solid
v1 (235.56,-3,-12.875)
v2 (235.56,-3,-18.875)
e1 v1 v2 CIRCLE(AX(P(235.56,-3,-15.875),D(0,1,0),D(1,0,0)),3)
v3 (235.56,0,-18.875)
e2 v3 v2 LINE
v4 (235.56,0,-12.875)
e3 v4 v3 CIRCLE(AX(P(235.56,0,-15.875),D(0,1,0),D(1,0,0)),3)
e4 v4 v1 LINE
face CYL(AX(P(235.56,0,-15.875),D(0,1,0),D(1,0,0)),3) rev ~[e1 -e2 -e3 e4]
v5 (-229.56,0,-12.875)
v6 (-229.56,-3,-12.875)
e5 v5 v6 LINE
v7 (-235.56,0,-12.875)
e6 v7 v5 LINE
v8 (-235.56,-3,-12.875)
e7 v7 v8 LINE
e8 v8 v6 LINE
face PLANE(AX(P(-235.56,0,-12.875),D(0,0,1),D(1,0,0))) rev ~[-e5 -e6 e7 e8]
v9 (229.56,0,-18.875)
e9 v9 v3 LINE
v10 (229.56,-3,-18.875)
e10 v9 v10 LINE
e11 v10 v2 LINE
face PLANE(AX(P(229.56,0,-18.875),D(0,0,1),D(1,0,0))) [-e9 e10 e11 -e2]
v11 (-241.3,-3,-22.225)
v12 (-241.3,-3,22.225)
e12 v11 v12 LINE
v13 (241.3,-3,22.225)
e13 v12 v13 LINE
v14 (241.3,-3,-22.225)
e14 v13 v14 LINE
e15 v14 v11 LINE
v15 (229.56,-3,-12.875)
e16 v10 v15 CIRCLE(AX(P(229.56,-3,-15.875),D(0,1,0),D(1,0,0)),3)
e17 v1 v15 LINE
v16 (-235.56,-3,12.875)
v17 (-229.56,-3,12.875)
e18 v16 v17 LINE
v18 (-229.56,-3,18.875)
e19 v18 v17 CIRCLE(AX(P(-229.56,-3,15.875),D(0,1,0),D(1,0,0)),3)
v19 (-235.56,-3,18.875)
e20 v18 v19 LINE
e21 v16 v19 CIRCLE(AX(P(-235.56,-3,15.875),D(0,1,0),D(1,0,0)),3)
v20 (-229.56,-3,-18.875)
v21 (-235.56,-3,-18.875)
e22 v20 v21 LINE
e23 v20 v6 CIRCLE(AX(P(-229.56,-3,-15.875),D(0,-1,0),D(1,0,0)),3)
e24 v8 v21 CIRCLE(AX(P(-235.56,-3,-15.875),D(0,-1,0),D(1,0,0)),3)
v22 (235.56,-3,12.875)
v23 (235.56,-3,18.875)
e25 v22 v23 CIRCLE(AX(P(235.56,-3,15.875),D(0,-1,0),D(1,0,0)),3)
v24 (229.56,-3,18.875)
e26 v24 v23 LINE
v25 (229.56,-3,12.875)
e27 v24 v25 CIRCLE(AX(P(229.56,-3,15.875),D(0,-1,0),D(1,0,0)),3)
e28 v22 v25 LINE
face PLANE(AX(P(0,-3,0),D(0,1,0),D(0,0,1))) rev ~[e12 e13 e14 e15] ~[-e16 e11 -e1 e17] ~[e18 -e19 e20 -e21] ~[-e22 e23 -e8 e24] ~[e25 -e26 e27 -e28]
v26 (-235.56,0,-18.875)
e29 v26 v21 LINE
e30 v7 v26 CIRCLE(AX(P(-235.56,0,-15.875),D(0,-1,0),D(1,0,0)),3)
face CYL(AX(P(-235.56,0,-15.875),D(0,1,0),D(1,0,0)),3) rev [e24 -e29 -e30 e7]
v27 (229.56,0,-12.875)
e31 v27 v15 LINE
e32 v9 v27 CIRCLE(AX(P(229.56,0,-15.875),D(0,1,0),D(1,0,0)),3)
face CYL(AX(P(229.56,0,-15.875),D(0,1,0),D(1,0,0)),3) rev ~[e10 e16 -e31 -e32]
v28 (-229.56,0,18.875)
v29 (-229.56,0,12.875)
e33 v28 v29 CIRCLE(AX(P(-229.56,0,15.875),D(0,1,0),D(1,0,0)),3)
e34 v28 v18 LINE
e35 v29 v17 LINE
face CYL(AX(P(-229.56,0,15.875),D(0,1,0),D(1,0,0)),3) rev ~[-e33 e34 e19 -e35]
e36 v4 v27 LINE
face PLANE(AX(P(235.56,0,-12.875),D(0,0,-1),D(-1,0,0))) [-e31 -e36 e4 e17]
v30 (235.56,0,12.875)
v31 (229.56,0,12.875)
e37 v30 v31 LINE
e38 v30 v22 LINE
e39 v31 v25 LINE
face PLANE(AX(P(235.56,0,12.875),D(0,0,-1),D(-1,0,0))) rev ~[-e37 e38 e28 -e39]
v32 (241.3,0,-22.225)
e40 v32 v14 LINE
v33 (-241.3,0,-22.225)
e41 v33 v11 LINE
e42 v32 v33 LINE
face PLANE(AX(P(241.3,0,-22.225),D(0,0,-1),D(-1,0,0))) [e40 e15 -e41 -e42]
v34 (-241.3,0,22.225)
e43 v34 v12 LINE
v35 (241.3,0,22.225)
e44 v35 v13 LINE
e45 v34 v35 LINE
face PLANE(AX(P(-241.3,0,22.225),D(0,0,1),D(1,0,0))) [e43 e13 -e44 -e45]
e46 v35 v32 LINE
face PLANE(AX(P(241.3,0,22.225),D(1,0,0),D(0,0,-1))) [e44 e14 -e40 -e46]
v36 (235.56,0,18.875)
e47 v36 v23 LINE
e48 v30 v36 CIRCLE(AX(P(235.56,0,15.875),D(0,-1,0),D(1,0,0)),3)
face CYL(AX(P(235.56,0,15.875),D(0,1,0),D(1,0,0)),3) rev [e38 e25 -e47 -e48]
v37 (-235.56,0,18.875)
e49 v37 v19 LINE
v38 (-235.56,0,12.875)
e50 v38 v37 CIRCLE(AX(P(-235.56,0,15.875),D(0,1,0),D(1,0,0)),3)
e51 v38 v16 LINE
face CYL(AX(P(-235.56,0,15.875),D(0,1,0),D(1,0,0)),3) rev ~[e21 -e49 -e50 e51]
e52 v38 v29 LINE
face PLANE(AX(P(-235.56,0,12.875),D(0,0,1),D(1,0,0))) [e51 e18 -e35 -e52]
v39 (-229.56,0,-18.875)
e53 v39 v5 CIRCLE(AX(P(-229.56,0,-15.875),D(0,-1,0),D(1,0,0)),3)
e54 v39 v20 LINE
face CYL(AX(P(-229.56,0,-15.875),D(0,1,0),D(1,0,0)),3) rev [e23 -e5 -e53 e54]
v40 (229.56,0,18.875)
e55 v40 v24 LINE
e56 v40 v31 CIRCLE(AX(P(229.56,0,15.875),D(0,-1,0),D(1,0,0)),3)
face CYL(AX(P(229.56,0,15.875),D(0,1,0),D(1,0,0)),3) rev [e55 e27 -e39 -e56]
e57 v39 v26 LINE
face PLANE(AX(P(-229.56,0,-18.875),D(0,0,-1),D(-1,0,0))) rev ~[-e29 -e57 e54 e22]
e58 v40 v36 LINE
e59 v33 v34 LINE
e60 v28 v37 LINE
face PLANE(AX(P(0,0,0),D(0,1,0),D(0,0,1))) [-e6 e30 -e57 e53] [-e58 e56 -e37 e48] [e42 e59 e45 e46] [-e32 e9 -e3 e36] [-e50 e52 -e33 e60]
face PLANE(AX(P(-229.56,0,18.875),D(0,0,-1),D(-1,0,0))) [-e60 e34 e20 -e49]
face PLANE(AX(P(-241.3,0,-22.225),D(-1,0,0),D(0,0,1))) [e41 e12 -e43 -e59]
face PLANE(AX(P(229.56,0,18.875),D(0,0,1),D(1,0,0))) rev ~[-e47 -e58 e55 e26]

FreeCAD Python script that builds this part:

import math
import FreeCAD as App
import Part
import Sketcher
from FreeCAD import Vector
Q = App.Units.Quantity

doc = App.newDocument("Part")
params = doc.addObject("Spreadsheet::Sheet", "Params")
for row, (alias, value) in enumerate([
    ("sketch1_width", "19 in"),
    ("sketch1_height", "1.75 in"),
    ("pad1_length", "0.1181102 in"),
], start=1):
    params.set(f"A{row}", alias)
    params.set(f"B{row}", "=" + value)
    params.setAlias(f"B{row}", alias)

body = doc.addObject("PartDesign::Body", "Body")

sketch1 = body.newObject("Sketcher::SketchObject", "Sketch")
sketch1.AttachmentSupport = (doc.getObject("XZ_Plane"), [""])
sketch1.MapMode = "FlatFace"
sketch1.addGeometry(Part.LineSegment(Vector(-241.3, 22.225, 0), Vector(-241.3, -22.225, 0)), False)
sketch1.addGeometry(Part.LineSegment(Vector(-241.3, -22.225, 0), Vector(241.3, -22.225, 0)), False)
sketch1.addGeometry(Part.LineSegment(Vector(241.3, -22.225, 0), Vector(241.3, 22.225, 0)), False)
sketch1.addGeometry(Part.LineSegment(Vector(241.3, 22.225, 0), Vector(-241.3, 22.225, 0)), False)
sketch1.addGeometry(Part.ArcOfCircle(Part.Circle(Vector(-235.56, -15.875, 0), Vector(0, 0, 1), 3), math.radians(90), math.radians(270)), False)
sketch1.addGeometry(Part.LineSegment(Vector(-235.56, -12.875, 0), Vector(-229.56, -12.875, 0)), False)
sketch1.addGeometry(Part.ArcOfCircle(Part.Circle(Vector(-229.56, -15.875, 0), Vector(0, 0, 1), 3), math.radians(-90), math.radians(90)), False)
sketch1.addGeometry(Part.LineSegment(Vector(-229.56, -18.875, 0), Vector(-235.56, -18.875, 0)), False)
sketch1.addGeometry(Part.LineSegment(Vector(229.56, -12.875, 0), Vector(235.56, -12.875, 0)), False)
sketch1.addGeometry(Part.ArcOfCircle(Part.Circle(Vector(235.56, -15.875, 0), Vector(0, 0, 1), 3), math.radians(-90), math.radians(90)), False)
sketch1.addGeometry(Part.LineSegment(Vector(235.56, -18.875, 0), Vector(229.56, -18.875, 0)), False)
sketch1.addGeometry(Part.ArcOfCircle(Part.Circle(Vector(229.56, -15.875, 0), Vector(0, 0, 1), 3), math.radians(90), math.radians(270)), False)
sketch1.addGeometry(Part.LineSegment(Vector(-229.56, 12.875, 0), Vector(-235.56, 12.875, 0)), False)
sketch1.addGeometry(Part.ArcOfCircle(Part.Circle(Vector(-235.56, 15.875, 0), Vector(0, 0, 1), 3), math.radians(90), math.radians(270)), False)
sketch1.addGeometry(Part.LineSegment(Vector(-235.56, 18.875, 0), Vector(-229.56, 18.875, 0)), False)
sketch1.addGeometry(Part.ArcOfCircle(Part.Circle(Vector(-229.56, 15.875, 0), Vector(0, 0, 1), 3), math.radians(-90), math.radians(90)), False)
sketch1.addGeometry(Part.ArcOfCircle(Part.Circle(Vector(235.56, 15.875, 0), Vector(0, 0, 1), 3), math.radians(-90), math.radians(90)), False)
sketch1.addGeometry(Part.LineSegment(Vector(235.56, 12.875, 0), Vector(229.56, 12.875, 0)), False)
sketch1.addGeometry(Part.ArcOfCircle(Part.Circle(Vector(229.56, 15.875, 0), Vector(0, 0, 1), 3), math.radians(90), math.radians(270)), False)
sketch1.addGeometry(Part.LineSegment(Vector(229.56, 18.875, 0), Vector(235.56, 18.875, 0)), False)
sketch1.addConstraint(Sketcher.Constraint("Coincident", 0, 2, 1, 1))
sketch1.addConstraint(Sketcher.Constraint("Coincident", 1, 2, 2, 1))
sketch1.addConstraint(Sketcher.Constraint("Coincident", 2, 2, 3, 1))
sketch1.addConstraint(Sketcher.Constraint("Coincident", 3, 2, 0, 1))
sketch1.addConstraint(Sketcher.Constraint("Tangent", 4, 1, 5, 1))
sketch1.addConstraint(Sketcher.Constraint("Tangent", 5, 2, 6, 2))
sketch1.addConstraint(Sketcher.Constraint("Tangent", 6, 1, 7, 1))
sketch1.addConstraint(Sketcher.Constraint("Tangent", 7, 2, 4, 2))
sketch1.addConstraint(Sketcher.Constraint("Tangent", 8, 2, 9, 2))
sketch1.addConstraint(Sketcher.Constraint("Tangent", 9, 1, 10, 1))
sketch1.addConstraint(Sketcher.Constraint("Tangent", 10, 2, 11, 2))
sketch1.addConstraint(Sketcher.Constraint("Tangent", 11, 1, 8, 1))
sketch1.addConstraint(Sketcher.Constraint("Tangent", 12, 2, 13, 2))
sketch1.addConstraint(Sketcher.Constraint("Tangent", 13, 1, 14, 1))
sketch1.addConstraint(Sketcher.Constraint("Tangent", 14, 2, 15, 2))
sketch1.addConstraint(Sketcher.Constraint("Tangent", 15, 1, 12, 1))
sketch1.addConstraint(Sketcher.Constraint("Tangent", 16, 1, 17, 1))
sketch1.addConstraint(Sketcher.Constraint("Tangent", 17, 2, 18, 2))
sketch1.addConstraint(Sketcher.Constraint("Tangent", 18, 1, 19, 1))
sketch1.addConstraint(Sketcher.Constraint("Tangent", 19, 2, 16, 2))
sketch1.addConstraint(Sketcher.Constraint("Vertical", 0))
sketch1.addConstraint(Sketcher.Constraint("Horizontal", 1))
sketch1.addConstraint(Sketcher.Constraint("Vertical", 2))
sketch1.addConstraint(Sketcher.Constraint("Horizontal", 3))
sketch1.addConstraint(Sketcher.Constraint("Horizontal", 5))
sketch1.addConstraint(Sketcher.Constraint("Horizontal", 7))
sketch1.addConstraint(Sketcher.Constraint("Horizontal", 8))
sketch1.addConstraint(Sketcher.Constraint("Horizontal", 10))
sketch1.addConstraint(Sketcher.Constraint("Horizontal", 12))
sketch1.addConstraint(Sketcher.Constraint("Horizontal", 14))
sketch1.addConstraint(Sketcher.Constraint("Horizontal", 17))
sketch1.addConstraint(Sketcher.Constraint("Horizontal", 19))
sketch1.addConstraint(Sketcher.Constraint("Equal", 6, 9))
sketch1.addConstraint(Sketcher.Constraint("Equal", 11, 13))
sketch1.addConstraint(Sketcher.Constraint("Equal", 15, 16))
sketch1.addConstraint(Sketcher.Constraint("Symmetric", 9, 3, 13, 3, -1, 1))
sketch1.addConstraint(Sketcher.Constraint("Symmetric", 4, 3, 16, 3, -1, 1))
sketch1.addConstraint(Sketcher.Constraint("Symmetric", 0, 2, 2, 2, -1, 1))
sketch1.addConstraint(Sketcher.Constraint("Symmetric", 4, 3, 9, 3, -2))
sketch1.addConstraint(Sketcher.Constraint("Vertical", 6, 3, 15, 3))
sketch1.addConstraint(Sketcher.Constraint("Vertical", 11, 3, 18, 3))
sketch1.addConstraint(Sketcher.Constraint("Equal", 7, 8))
sketch1.addConstraint(Sketcher.Constraint("DistanceX", 1, 1, 1, 2, Q("19 in")))
sketch1.addConstraint(Sketcher.Constraint("DistanceY", 0, 2, 0, 1, Q("1.75 in")))
sketch1.addConstraint(Sketcher.Constraint("Radius", 4, Q("0.1181 in")))
sketch1.addConstraint(Sketcher.Constraint("DistanceY", 0, 2, 13, 3, Q("1.5 in")))
sketch1.addConstraint(Sketcher.Constraint("DistanceX", 5, 1, 5, 2, Q("6 mm")))
sketch1.addConstraint(Sketcher.Constraint("DistanceX", 6, 3, -1, 1, Q("9.0378 in")))
sketch1.setExpression("Constraints[42]", "Params.sketch1_width")
sketch1.setExpression("Constraints[43]", "Params.sketch1_height")
pad1 = body.newObject("PartDesign::Pad", "Pad")
pad1.Profile = sketch1
pad1.setExpression("Length", "Params.pad1_length")

doc.recompute()
